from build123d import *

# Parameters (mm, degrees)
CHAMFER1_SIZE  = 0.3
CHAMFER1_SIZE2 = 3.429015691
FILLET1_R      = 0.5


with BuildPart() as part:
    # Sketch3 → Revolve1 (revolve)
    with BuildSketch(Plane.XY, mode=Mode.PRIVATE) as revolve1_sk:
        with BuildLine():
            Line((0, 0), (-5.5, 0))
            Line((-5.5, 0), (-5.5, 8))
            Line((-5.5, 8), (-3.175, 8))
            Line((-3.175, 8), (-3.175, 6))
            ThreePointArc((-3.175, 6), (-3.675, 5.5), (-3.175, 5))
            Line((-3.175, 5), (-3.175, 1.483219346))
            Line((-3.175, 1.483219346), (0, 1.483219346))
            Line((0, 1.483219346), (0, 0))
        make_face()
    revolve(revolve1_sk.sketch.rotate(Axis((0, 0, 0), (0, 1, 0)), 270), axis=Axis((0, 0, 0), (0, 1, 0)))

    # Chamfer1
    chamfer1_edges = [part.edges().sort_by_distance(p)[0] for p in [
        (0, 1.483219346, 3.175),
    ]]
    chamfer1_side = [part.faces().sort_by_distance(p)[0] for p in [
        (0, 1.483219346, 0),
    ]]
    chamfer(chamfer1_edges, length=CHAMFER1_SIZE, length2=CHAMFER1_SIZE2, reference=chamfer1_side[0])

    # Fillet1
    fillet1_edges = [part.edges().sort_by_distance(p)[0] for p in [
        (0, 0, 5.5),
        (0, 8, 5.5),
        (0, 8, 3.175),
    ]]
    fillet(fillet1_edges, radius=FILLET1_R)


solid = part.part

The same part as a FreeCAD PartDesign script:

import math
import FreeCAD as App
import Part
import Sketcher

V = App.Vector


def edges_at(feature, points):
    """Names of the edges that pass closest to the given points."""
    edges = feature.Shape.Edges
    near = lambda p: min(range(len(edges)), key=lambda i: edges[i].distToShape(Part.Vertex(*p))[0])
    return sorted({f"Edge{near(p) + 1}" for p in points})

doc = App.newDocument("Part")
body = doc.addObject("PartDesign::Body", "Body")

sketch1 = doc.addObject("Sketcher::SketchObject", "Sketch")
body.addObject(sketch1)
sketch1.AttachmentSupport = (doc.XY_Plane, [""])
sketch1.MapMode = "FlatFace"
sketch1.addGeometry([
    Part.LineSegment(V(-5.5, 0, 0), V(0, 0, 0)),
    Part.LineSegment(V(0, 0, 0), V(0, 1.483219, 0)),
    Part.LineSegment(V(0, 1.483219, 0), V(-3.175, 1.483219, 0)),
    Part.LineSegment(V(-3.175, 1.483219, 0), V(-3.175, 5, 0)),
    Part.ArcOfCircle(Part.Circle(V(-3.175, 5.5, 0), V(0, 0, 1), 0.5), math.radians(90), math.radians(270)),
    Part.LineSegment(V(-3.175, 6, 0), V(-3.175, 8, 0)),
    Part.LineSegment(V(-3.175, 8, 0), V(-5.5, 8, 0)),
    Part.LineSegment(V(-5.5, 8, 0), V(-5.5, 0, 0)),
], False)
sketch1.addConstraint([
    Sketcher.Constraint("Coincident", 0, 2, 1, 1),
    Sketcher.Constraint("Coincident", 1, 2, 2, 1),
    Sketcher.Constraint("Coincident", 2, 2, 3, 1),
    Sketcher.Constraint("Coincident", 3, 2, 4, 2),
    Sketcher.Constraint("Coincident", 4, 1, 5, 1),
    Sketcher.Constraint("Coincident", 5, 2, 6, 1),
    Sketcher.Constraint("Coincident", 6, 2, 7, 1),
    Sketcher.Constraint("Coincident", 7, 2, 0, 1),
    Sketcher.Constraint("Horizontal", 0),
    Sketcher.Constraint("Vertical", 1),
    Sketcher.Constraint("Horizontal", 2),
    Sketcher.Constraint("Vertical", 3),
    Sketcher.Constraint("Vertical", 5),
    Sketcher.Constraint("Horizontal", 6),
    Sketcher.Constraint("Vertical", 7),
    Sketcher.Constraint("Coincident", 0, 2, -1, 1),
    Sketcher.Constraint("Vertical", 4, 3, 2, 2),
    Sketcher.Constraint("Vertical", 3, 2, 4, 1),
    Sketcher.Constraint("Radius", 4, 0.5),
    Sketcher.Constraint("DistanceY", 5, 1, 5, 2, 2.0),
    Sketcher.Constraint("DistanceY", 7, 2, 7, 1, 8.0),
    Sketcher.Constraint("DistanceX", 0, 1, 0, 2, 5.5),
    Sketcher.Constraint("DistanceX", 2, 2, 2, 1, 3.175),
    Sketcher.Constraint("DistanceY", 1, 1, 1, 2, 1.483219),
])
revolution = doc.addObject("PartDesign::Revolution", "Revolution")
body.addObject(revolution)
revolution.Profile = sketch1
revolution.ReferenceAxis = (sketch1, ["V_Axis"])
revolution.Angle = 360
doc.recompute()

chamfer = doc.addObject("PartDesign::Chamfer", "Chamfer")
body.addObject(chamfer)
chamfer.Base = (revolution, edges_at(revolution, [(0, 1.483, 3.175)]))
chamfer.ChamferType = "Two distances"
chamfer.Size = 0.3
chamfer.Size2 = 3.429016
doc.recompute()

fillet = doc.addObject("PartDesign::Fillet", "Fillet")
body.addObject(fillet)
fillet.Base = (chamfer, edges_at(chamfer, [(0, 0, 5.5), (0, 8, 5.5), (0, 8, 3.175)]))
fillet.Radius = 0.5

doc.recompute()
